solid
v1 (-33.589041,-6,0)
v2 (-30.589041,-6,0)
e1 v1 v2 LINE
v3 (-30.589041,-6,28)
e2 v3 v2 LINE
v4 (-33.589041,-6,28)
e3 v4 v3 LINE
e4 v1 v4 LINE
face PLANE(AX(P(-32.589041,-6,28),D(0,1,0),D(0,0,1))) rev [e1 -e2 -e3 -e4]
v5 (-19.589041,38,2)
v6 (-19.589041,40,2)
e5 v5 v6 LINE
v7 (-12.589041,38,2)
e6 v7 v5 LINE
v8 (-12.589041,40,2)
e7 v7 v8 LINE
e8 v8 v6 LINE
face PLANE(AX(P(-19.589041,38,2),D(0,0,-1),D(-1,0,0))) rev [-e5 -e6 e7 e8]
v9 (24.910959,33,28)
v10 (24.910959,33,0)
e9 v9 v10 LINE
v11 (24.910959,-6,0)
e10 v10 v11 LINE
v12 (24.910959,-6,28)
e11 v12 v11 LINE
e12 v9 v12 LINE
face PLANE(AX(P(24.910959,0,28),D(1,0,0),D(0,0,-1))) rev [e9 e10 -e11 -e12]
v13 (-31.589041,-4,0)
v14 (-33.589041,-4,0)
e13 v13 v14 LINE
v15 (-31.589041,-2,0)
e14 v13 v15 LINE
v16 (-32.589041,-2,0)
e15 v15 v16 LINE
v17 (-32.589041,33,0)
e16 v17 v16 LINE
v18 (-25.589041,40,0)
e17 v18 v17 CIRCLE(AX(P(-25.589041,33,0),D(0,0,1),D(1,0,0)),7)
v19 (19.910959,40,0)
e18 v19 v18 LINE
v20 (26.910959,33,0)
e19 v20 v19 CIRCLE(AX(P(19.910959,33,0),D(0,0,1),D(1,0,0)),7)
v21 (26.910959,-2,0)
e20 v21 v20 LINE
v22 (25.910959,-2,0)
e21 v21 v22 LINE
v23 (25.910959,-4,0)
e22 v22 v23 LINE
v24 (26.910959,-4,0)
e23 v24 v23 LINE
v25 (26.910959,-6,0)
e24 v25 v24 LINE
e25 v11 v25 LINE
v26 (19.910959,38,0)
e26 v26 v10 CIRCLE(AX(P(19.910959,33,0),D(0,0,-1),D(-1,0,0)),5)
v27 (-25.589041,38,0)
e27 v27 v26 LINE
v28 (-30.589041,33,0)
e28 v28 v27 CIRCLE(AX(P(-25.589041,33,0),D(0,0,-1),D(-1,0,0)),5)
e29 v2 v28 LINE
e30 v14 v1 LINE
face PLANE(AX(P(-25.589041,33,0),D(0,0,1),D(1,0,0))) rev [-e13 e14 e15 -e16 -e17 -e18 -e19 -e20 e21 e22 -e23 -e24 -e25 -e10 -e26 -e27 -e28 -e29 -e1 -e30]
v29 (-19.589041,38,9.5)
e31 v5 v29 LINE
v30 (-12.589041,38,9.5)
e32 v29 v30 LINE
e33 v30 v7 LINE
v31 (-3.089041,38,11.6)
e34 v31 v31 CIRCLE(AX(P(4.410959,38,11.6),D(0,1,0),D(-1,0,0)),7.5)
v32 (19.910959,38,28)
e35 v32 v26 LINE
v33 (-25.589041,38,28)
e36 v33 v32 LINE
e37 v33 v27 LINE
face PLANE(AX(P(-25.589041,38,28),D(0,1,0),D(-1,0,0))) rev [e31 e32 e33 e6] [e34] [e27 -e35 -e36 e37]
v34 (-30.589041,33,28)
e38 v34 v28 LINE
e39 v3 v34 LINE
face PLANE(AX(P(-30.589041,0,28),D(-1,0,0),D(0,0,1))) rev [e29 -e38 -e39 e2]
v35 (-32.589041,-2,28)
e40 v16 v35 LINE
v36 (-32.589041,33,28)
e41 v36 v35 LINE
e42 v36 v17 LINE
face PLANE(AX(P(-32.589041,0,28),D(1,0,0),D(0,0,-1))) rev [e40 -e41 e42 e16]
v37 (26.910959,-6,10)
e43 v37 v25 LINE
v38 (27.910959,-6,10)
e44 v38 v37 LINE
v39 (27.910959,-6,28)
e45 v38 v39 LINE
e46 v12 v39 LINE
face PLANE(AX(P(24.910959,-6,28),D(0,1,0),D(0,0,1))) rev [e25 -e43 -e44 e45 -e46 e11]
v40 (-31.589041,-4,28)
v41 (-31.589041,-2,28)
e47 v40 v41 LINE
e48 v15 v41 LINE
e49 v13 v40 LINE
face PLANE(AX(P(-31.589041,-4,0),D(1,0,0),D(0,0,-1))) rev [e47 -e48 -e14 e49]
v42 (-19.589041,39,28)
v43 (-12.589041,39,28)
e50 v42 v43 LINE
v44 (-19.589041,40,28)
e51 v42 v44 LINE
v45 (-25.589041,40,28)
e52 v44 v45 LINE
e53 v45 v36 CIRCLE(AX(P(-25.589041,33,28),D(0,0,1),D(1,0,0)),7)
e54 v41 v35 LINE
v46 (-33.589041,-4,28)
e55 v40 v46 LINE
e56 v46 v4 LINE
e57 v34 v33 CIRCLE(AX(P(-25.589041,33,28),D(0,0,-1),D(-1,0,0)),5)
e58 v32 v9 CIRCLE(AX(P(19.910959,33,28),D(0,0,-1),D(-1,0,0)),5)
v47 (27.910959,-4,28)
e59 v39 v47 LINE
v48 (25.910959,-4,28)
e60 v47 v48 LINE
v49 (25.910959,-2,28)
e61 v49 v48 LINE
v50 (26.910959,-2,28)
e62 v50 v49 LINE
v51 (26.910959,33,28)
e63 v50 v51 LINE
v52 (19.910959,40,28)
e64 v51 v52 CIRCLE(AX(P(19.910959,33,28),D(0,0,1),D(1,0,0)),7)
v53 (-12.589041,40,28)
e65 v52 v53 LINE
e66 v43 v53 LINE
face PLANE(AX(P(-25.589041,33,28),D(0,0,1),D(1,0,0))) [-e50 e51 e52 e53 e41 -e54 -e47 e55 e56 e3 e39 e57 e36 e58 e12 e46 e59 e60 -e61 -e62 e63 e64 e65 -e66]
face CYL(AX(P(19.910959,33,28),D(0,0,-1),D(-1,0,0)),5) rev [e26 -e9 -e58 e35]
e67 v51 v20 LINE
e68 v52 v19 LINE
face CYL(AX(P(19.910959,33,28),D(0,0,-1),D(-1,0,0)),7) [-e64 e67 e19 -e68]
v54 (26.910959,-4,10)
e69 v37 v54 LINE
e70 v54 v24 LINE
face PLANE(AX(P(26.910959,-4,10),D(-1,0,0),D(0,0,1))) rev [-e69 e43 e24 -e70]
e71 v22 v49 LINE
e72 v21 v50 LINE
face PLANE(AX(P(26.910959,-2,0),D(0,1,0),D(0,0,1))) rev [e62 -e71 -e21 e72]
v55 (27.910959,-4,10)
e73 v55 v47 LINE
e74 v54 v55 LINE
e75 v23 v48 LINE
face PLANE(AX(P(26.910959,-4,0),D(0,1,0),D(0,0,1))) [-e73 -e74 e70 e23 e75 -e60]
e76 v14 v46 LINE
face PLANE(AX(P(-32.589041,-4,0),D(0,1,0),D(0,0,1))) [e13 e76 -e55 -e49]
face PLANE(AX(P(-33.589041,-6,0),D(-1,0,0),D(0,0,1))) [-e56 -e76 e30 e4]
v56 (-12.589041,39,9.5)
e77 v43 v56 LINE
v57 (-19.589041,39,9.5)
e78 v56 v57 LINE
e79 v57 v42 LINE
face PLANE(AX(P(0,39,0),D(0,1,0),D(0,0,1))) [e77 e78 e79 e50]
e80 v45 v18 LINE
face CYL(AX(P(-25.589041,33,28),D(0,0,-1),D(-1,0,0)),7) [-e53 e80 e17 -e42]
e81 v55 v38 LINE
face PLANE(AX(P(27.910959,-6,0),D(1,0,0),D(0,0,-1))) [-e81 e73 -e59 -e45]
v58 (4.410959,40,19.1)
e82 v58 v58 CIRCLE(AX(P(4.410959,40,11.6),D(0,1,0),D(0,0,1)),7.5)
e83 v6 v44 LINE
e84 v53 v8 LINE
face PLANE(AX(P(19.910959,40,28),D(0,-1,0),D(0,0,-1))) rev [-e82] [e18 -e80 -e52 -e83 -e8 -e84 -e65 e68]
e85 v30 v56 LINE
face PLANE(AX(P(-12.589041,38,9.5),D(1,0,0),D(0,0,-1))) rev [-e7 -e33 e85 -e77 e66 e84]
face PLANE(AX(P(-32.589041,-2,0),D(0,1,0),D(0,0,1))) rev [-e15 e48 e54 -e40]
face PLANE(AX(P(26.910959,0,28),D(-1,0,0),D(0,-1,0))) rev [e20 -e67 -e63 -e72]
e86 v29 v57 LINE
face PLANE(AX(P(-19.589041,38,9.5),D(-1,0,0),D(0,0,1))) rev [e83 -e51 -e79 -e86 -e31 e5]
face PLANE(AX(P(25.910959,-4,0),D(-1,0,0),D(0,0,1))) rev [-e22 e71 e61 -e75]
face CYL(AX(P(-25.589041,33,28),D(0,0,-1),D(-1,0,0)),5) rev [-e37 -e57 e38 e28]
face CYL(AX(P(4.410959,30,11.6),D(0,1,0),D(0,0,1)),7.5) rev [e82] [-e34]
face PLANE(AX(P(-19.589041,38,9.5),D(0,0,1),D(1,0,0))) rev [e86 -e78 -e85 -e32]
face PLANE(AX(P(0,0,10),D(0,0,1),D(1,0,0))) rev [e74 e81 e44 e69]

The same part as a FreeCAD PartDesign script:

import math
import FreeCAD as App
import Part
import Sketcher

V = App.Vector

doc = App.newDocument("Part")
body = doc.addObject("PartDesign::Body", "Body")

sketch1 = doc.addObject("Sketcher::SketchObject", "Sketch")
body.addObject(sketch1)
sketch1.AttachmentSupport = (doc.XY_Plane, [""])
sketch1.MapMode = "FlatFace"
sketch1.addGeometry([
    Part.ArcOfCircle(Part.Circle(V(-25.6, 33, 0), V(0, 0, 1), 5), math.radians(90), math.radians(180)),
    Part.LineSegment(V(-25.6, 38, 0), V(19.9, 38, 0)),
    Part.ArcOfCircle(Part.Circle(V(19.9, 33, 0), V(0, 0, 1), 5), math.radians(0), math.radians(90)),
    Part.LineSegment(V(24.9, 33, 0), V(24.9, -6, 0)),
    Part.LineSegment(V(24.9, -6, 0), V(26.9, -6, 0)),
    Part.LineSegment(V(26.9, -6, 0), V(26.9, 33, 0)),
    Part.ArcOfCircle(Part.Circle(V(19.9, 33, 0), V(0, 0, 1), 7), math.radians(0), math.radians(90)),
    Part.LineSegment(V(19.9, 40, 0), V(-25.6, 40, 0)),
    Part.ArcOfCircle(Part.Circle(V(-25.6, 33, 0), V(0, 0, 1), 7), math.radians(90), math.radians(180)),
    Part.LineSegment(V(-32.6, 33, 0), V(-32.6, -6, 0)),
    Part.LineSegment(V(-32.6, -6, 0), V(-30.6, -6, 0)),
    Part.LineSegment(V(-30.6, -6, 0), V(-30.6, 33, 0)),
], False)
sketch1.addConstraint([
    Sketcher.Constraint("Tangent", 0, 1, 1, 1),
    Sketcher.Constraint("Tangent", 1, 2, 2, 2),
    Sketcher.Constraint("Tangent", 2, 1, 3, 1),
    Sketcher.Constraint("Coincident", 3, 2, 4, 1),
    Sketcher.Constraint("Coincident", 4, 2, 5, 1),
    Sketcher.Constraint("Tangent", 5, 2, 6, 1),
    Sketcher.Constraint("Tangent", 6, 2, 7, 1),
    Sketcher.Constraint("Tangent", 7, 2, 8, 1),
    Sketcher.Constraint("Tangent", 8, 2, 9, 1),
    Sketcher.Constraint("Coincident", 9, 2, 10, 1),
    Sketcher.Constraint("Coincident", 10, 2, 11, 1),
    Sketcher.Constraint("Tangent", 11, 2, 0, 2),
    Sketcher.Constraint("Horizontal", 1),
    Sketcher.Constraint("Vertical", 3),
    Sketcher.Constraint("Horizontal", 4),
    Sketcher.Constraint("Vertical", 5),
    Sketcher.Constraint("Horizontal", 7),
    Sketcher.Constraint("Vertical", 9),
    Sketcher.Constraint("Horizontal", 10),
    Sketcher.Constraint("Vertical", 11),
    Sketcher.Constraint("Coincident", 6, 3, 2, 3),
    Sketcher.Constraint("Coincident", 8, 3, 0, 3),
    Sketcher.Constraint("Equal", 0, 2),
    Sketcher.Constraint("Horizontal", 4, 2, 9, 2),
    Sketcher.Constraint("Radius", 0, 5.0),
    Sketcher.Constraint("Radius", 6, 7.0),
    Sketcher.Constraint("DistanceY", 3, 2, 3, 1, 39.0),
    Sketcher.Constraint("DistanceX", 1, 1, 1, 2, 45.5),
    Sketcher.Constraint("DistanceY", -1, 1, 0, 3, 33.0),
    Sketcher.Constraint("DistanceX", 0, 3, -1, 1, 25.589041),
])
pad1 = doc.addObject("PartDesign::Pad", "Pad")
body.addObject(pad1)
pad1.Profile = sketch1
pad1.Length = 28

sketch2 = doc.addObject("Sketcher::SketchObject", "Sketch001")
body.addObject(sketch2)
sketch2.AttachmentSupport = (doc.XY_Plane, [""])
sketch2.MapMode = "FlatFace"
sketch2.AttachmentOffset = App.Placement(V(0, 0, 28), App.Rotation())
sketch2.addGeometry([
    Part.LineSegment(V(-33.6, -4, 0), V(-33.6, -6, 0)),
    Part.LineSegment(V(-33.6, -6, 0), V(-32.6, -6, 0)),
    Part.LineSegment(V(-32.6, -6, 0), V(-32.6, -4, 0)),
    Part.LineSegment(V(-32.6, -4, 0), V(-33.6, -4, 0)),
    Part.LineSegment(V(26.9, -4, 0), V(26.9, -6, 0)),
    Part.LineSegment(V(26.9, -6, 0), V(27.9, -6, 0)),
    Part.LineSegment(V(27.9, -6, 0), V(27.9, -4, 0)),
    Part.LineSegment(V(27.9, -4, 0), V(26.9, -4, 0)),
], False)
sketch2.addConstraint([
    Sketcher.Constraint("Coincident", 0, 2, 1, 1),
    Sketcher.Constraint("Coincident", 1, 2, 2, 1),
    Sketcher.Constraint("Coincident", 2, 2, 3, 1),
    Sketcher.Constraint("Coincident", 3, 2, 0, 1),
    Sketcher.Constraint("Coincident", 4, 2, 5, 1),
    Sketcher.Constraint("Coincident", 5, 2, 6, 1),
    Sketcher.Constraint("Coincident", 6, 2, 7, 1),
    Sketcher.Constraint("Coincident", 7, 2, 4, 1),
    Sketcher.Constraint("Vertical", 0),
    Sketcher.Constraint("Horizontal", 1),
    Sketcher.Constraint("Vertical", 2),
    Sketcher.Constraint("Horizontal", 3),
    Sketcher.Constraint("Vertical", 4),
    Sketcher.Constraint("Horizontal", 5),
    Sketcher.Constraint("Vertical", 6),
    Sketcher.Constraint("Horizontal", 7),
    Sketcher.Constraint("Horizontal", 1, 2, 4, 2),
    Sketcher.Constraint("Horizontal", 3, 2, 6, 2),
    Sketcher.Constraint("Equal", 3, 5),
    Sketcher.Constraint("DistanceX", 1, 1, 1, 2, 1.0),
    Sketcher.Constraint("DistanceY", 0, 2, 0, 1, 2.0),
    Sketcher.Constraint("DistanceY", 0, 2, -1, 1, 6.0),
    Sketcher.Constraint("DistanceX", 1, 2, 4, 2, 59.5),
    Sketcher.Constraint("DistanceX", 0, 2, -1, 1, 33.589041),
])
pad2 = doc.addObject("PartDesign::Pad", "Pad001")
body.addObject(pad2)
pad2.Profile = sketch2
pad2.Length = 28
pad2.Reversed = True

sketch3 = doc.addObject("Sketcher::SketchObject", "Sketch002")
body.addObject(sketch3)
sketch3.AttachmentSupport = (doc.XY_Plane, [""])
sketch3.MapMode = "FlatFace"
sketch3.AttachmentOffset = App.Placement(V(0, 0, 28), App.Rotation())
sketch3.addGeometry([
    Part.LineSegment(V(-32.6, -2, 0), V(-32.6, -4, 0)),
    Part.LineSegment(V(-32.6, -4, 0), V(-31.6, -4, 0)),
    Part.LineSegment(V(-31.6, -4, 0), V(-31.6, -2, 0)),
    Part.LineSegment(V(-31.6, -2, 0), V(-32.6, -2, 0)),
    Part.LineSegment(V(25.9, -2, 0), V(25.9, -4, 0)),
    Part.LineSegment(V(25.9, -4, 0), V(26.9, -4, 0)),
    Part.LineSegment(V(26.9, -4, 0), V(26.9, -2, 0)),
    Part.LineSegment(V(26.9, -2, 0), V(25.9, -2, 0)),
], False)
sketch3.addConstraint([
    Sketcher.Constraint("Coincident", 0, 2, 1, 1),
    Sketcher.Constraint("Coincident", 1, 2, 2, 1),
    Sketcher.Constraint("Coincident", 2, 2, 3, 1),
    Sketcher.Constraint("Coincident", 3, 2, 0, 1),
    Sketcher.Constraint("Coincident", 4, 2, 5, 1),
    Sketcher.Constraint("Coincident", 5, 2, 6, 1),
    Sketcher.Constraint("Coincident", 6, 2, 7, 1),
    Sketcher.Constraint("Coincident", 7, 2, 4, 1),
    Sketcher.Constraint("Vertical", 0),
    Sketcher.Constraint("Horizontal", 1),
    Sketcher.Constraint("Vertical", 2),
    Sketcher.Constraint("Horizontal", 3),
    Sketcher.Constraint("Vertical", 4),
    Sketcher.Constraint("Horizontal", 5),
    Sketcher.Constraint("Vertical", 6),
    Sketcher.Constraint("Horizontal", 7),
    Sketcher.Constraint("Horizontal", 1, 2, 4, 2),
    Sketcher.Constraint("Horizontal", 3, 2, 6, 2),
    Sketcher.Constraint("Equal", 3, 5),
    Sketcher.Constraint("DistanceX", 1, 1, 1, 2, 1.0),
    Sketcher.Constraint("DistanceY", 0, 2, 0, 1, 2.0),
    Sketcher.Constraint("DistanceY", 0, 2, -1, 1, 4.0),
    Sketcher.Constraint("DistanceX", 1, 2, 4, 2, 57.5),
    Sketcher.Constraint("DistanceX", 0, 2, -1, 1, 32.589041),
])
pocket1 = doc.addObject("PartDesign::Pocket", "Pocket")
body.addObject(pocket1)
pocket1.Profile = sketch3
pocket1.Type = "ThroughAll"

sketch4 = doc.addObject("Sketcher::SketchObject", "Sketch003")
body.addObject(sketch4)
sketch4.AttachmentSupport = (doc.XZ_Plane, [""])
sketch4.MapMode = "FlatFace"
sketch4.AttachmentOffset = App.Placement(V(0, 0, -40), App.Rotation())
sketch4.addGeometry(Part.Circle(V(4, 12, 0), V(0, 0, 1), 8), False)
sketch4.addConstraint([
    Sketcher.Constraint("Diameter", 0, 15.0),
    Sketcher.Constraint("DistanceY", -1, 1, 0, 3, 11.6),
    Sketcher.Constraint("DistanceX", -1, 1, 0, 3, 4.410959),
])
pocket2 = doc.addObject("PartDesign::Pocket", "Pocket001")
body.addObject(pocket2)
pocket2.Profile = sketch4
pocket2.Length = 10
pocket2.Reversed = True

sketch5 = doc.addObject("Sketcher::SketchObject", "Sketch004")
body.addObject(sketch5)
sketch5.AttachmentSupport = (doc.XY_Plane, [""])
sketch5.MapMode = "FlatFace"
sketch5.addGeometry([
    Part.LineSegment(V(27.9, -4, 0), V(27.9, -6, 0)),
    Part.LineSegment(V(27.9, -6, 0), V(26.9, -6, 0)),
    Part.LineSegment(V(26.9, -6, 0), V(26.9, -4, 0)),
    Part.LineSegment(V(26.9, -4, 0), V(27.9, -4, 0)),
], False)
sketch5.addConstraint([
    Sketcher.Constraint("Coincident", 0, 2, 1, 1),
    Sketcher.Constraint("Coincident", 1, 2, 2, 1),
    Sketcher.Constraint("Coincident", 2, 2, 3, 1),
    Sketcher.Constraint("Coincident", 3, 2, 0, 1),
    Sketcher.Constraint("Vertical", 0),
    Sketcher.Constraint("Horizontal", 1),
    Sketcher.Constraint("Vertical", 2),
    Sketcher.Constraint("Horizontal", 3),
    Sketcher.Constraint("DistanceX", 1, 2, 1, 1, 1.0),
    Sketcher.Constraint("DistanceY", 0, 2, 0, 1, 2.0),
    Sketcher.Constraint("DistanceY", 0, 2, -1, 1, 6.0),
    Sketcher.Constraint("DistanceX", -1, 1, 0, 2, 27.910959),
])
pocket3 = doc.addObject("PartDesign::Pocket", "Pocket002")
body.addObject(pocket3)
pocket3.Profile = sketch5
pocket3.Length = 10
pocket3.Reversed = True

sketch6 = doc.addObject("Sketcher::SketchObject", "Sketch005")
body.addObject(sketch6)
sketch6.AttachmentSupport = (doc.XZ_Plane, [""])
sketch6.MapMode = "FlatFace"
sketch6.AttachmentOffset = App.Placement(V(0, 0, -40), App.Rotation())
sketch6.addGeometry([
    Part.LineSegment(V(-20, 2, 0), V(-20, 10, 0)),
    Part.LineSegment(V(-20, 10, 0), V(-13, 10, 0)),
    Part.LineSegment(V(-13, 10, 0), V(-13, 2, 0)),
    Part.LineSegment(V(-13, 2, 0), V(-20, 2, 0)),
], False)
sketch6.addConstraint([
    Sketcher.Constraint("Coincident", 0, 2, 1, 1),
    Sketcher.Constraint("Coincident", 1, 2, 2, 1),
    Sketcher.Constraint("Coincident", 2, 2, 3, 1),
    Sketcher.Constraint("Coincident", 3, 2, 0, 1),
    Sketcher.Constraint("Vertical", 0),
    Sketcher.Constraint("Horizontal", 1),
    Sketcher.Constraint("Vertical", 2),
    Sketcher.Constraint("Horizontal", 3),
    Sketcher.Constraint("DistanceX", 1, 1, 1, 2, 7.0),
    Sketcher.Constraint("DistanceY", 0, 1, 0, 2, 7.5),
    Sketcher.Constraint("DistanceY", -1, 1, 2, 2, 2.0),
    Sketcher.Constraint("DistanceX", 0, 2, -1, 1, 19.589041),
])
pocket4 = doc.addObject("PartDesign::Pocket", "Pocket003")
body.addObject(pocket4)
pocket4.Profile = sketch6
pocket4.Length = 2
pocket4.Reversed = True

sketch7 = doc.addObject("Sketcher::SketchObject", "Sketch006")
body.addObject(sketch7)
sketch7.AttachmentSupport = (doc.XZ_Plane, [""])
sketch7.MapMode = "FlatFace"
sketch7.AttachmentOffset = App.Placement(V(0, 0, -40), App.Rotation())
sketch7.addGeometry([
    Part.LineSegment(V(-20, 10, 0), V(-20, 28, 0)),
    Part.LineSegment(V(-20, 28, 0), V(-13, 28, 0)),
    Part.LineSegment(V(-13, 28, 0), V(-13, 10, 0)),
    Part.LineSegment(V(-13, 10, 0), V(-20, 10, 0)),
], False)
sketch7.addConstraint([
    Sketcher.Constraint("Coincident", 0, 2, 1, 1),
    Sketcher.Constraint("Coincident", 1, 2, 2, 1),
    Sketcher.Constraint("Coincident", 2, 2, 3, 1),
    Sketcher.Constraint("Coincident", 3, 2, 0, 1),
    Sketcher.Constraint("Vertical", 0),
    Sketcher.Constraint("Horizontal", 1),
    Sketcher.Constraint("Vertical", 2),
    Sketcher.Constraint("Horizontal", 3),
    Sketcher.Constraint("DistanceX", 1, 1, 1, 2, 7.0),
    Sketcher.Constraint("DistanceY", 0, 1, 0, 2, 18.5),
    Sketcher.Constraint("DistanceY", -1, 1, 0, 2, 28.0),
    Sketcher.Constraint("DistanceX", 0, 2, -1, 1, 19.589041),
])
pocket5 = doc.addObject("PartDesign::Pocket", "Pocket004")
body.addObject(pocket5)
pocket5.Profile = sketch7
pocket5.Length = 1
pocket5.Reversed = True

doc.recompute()
